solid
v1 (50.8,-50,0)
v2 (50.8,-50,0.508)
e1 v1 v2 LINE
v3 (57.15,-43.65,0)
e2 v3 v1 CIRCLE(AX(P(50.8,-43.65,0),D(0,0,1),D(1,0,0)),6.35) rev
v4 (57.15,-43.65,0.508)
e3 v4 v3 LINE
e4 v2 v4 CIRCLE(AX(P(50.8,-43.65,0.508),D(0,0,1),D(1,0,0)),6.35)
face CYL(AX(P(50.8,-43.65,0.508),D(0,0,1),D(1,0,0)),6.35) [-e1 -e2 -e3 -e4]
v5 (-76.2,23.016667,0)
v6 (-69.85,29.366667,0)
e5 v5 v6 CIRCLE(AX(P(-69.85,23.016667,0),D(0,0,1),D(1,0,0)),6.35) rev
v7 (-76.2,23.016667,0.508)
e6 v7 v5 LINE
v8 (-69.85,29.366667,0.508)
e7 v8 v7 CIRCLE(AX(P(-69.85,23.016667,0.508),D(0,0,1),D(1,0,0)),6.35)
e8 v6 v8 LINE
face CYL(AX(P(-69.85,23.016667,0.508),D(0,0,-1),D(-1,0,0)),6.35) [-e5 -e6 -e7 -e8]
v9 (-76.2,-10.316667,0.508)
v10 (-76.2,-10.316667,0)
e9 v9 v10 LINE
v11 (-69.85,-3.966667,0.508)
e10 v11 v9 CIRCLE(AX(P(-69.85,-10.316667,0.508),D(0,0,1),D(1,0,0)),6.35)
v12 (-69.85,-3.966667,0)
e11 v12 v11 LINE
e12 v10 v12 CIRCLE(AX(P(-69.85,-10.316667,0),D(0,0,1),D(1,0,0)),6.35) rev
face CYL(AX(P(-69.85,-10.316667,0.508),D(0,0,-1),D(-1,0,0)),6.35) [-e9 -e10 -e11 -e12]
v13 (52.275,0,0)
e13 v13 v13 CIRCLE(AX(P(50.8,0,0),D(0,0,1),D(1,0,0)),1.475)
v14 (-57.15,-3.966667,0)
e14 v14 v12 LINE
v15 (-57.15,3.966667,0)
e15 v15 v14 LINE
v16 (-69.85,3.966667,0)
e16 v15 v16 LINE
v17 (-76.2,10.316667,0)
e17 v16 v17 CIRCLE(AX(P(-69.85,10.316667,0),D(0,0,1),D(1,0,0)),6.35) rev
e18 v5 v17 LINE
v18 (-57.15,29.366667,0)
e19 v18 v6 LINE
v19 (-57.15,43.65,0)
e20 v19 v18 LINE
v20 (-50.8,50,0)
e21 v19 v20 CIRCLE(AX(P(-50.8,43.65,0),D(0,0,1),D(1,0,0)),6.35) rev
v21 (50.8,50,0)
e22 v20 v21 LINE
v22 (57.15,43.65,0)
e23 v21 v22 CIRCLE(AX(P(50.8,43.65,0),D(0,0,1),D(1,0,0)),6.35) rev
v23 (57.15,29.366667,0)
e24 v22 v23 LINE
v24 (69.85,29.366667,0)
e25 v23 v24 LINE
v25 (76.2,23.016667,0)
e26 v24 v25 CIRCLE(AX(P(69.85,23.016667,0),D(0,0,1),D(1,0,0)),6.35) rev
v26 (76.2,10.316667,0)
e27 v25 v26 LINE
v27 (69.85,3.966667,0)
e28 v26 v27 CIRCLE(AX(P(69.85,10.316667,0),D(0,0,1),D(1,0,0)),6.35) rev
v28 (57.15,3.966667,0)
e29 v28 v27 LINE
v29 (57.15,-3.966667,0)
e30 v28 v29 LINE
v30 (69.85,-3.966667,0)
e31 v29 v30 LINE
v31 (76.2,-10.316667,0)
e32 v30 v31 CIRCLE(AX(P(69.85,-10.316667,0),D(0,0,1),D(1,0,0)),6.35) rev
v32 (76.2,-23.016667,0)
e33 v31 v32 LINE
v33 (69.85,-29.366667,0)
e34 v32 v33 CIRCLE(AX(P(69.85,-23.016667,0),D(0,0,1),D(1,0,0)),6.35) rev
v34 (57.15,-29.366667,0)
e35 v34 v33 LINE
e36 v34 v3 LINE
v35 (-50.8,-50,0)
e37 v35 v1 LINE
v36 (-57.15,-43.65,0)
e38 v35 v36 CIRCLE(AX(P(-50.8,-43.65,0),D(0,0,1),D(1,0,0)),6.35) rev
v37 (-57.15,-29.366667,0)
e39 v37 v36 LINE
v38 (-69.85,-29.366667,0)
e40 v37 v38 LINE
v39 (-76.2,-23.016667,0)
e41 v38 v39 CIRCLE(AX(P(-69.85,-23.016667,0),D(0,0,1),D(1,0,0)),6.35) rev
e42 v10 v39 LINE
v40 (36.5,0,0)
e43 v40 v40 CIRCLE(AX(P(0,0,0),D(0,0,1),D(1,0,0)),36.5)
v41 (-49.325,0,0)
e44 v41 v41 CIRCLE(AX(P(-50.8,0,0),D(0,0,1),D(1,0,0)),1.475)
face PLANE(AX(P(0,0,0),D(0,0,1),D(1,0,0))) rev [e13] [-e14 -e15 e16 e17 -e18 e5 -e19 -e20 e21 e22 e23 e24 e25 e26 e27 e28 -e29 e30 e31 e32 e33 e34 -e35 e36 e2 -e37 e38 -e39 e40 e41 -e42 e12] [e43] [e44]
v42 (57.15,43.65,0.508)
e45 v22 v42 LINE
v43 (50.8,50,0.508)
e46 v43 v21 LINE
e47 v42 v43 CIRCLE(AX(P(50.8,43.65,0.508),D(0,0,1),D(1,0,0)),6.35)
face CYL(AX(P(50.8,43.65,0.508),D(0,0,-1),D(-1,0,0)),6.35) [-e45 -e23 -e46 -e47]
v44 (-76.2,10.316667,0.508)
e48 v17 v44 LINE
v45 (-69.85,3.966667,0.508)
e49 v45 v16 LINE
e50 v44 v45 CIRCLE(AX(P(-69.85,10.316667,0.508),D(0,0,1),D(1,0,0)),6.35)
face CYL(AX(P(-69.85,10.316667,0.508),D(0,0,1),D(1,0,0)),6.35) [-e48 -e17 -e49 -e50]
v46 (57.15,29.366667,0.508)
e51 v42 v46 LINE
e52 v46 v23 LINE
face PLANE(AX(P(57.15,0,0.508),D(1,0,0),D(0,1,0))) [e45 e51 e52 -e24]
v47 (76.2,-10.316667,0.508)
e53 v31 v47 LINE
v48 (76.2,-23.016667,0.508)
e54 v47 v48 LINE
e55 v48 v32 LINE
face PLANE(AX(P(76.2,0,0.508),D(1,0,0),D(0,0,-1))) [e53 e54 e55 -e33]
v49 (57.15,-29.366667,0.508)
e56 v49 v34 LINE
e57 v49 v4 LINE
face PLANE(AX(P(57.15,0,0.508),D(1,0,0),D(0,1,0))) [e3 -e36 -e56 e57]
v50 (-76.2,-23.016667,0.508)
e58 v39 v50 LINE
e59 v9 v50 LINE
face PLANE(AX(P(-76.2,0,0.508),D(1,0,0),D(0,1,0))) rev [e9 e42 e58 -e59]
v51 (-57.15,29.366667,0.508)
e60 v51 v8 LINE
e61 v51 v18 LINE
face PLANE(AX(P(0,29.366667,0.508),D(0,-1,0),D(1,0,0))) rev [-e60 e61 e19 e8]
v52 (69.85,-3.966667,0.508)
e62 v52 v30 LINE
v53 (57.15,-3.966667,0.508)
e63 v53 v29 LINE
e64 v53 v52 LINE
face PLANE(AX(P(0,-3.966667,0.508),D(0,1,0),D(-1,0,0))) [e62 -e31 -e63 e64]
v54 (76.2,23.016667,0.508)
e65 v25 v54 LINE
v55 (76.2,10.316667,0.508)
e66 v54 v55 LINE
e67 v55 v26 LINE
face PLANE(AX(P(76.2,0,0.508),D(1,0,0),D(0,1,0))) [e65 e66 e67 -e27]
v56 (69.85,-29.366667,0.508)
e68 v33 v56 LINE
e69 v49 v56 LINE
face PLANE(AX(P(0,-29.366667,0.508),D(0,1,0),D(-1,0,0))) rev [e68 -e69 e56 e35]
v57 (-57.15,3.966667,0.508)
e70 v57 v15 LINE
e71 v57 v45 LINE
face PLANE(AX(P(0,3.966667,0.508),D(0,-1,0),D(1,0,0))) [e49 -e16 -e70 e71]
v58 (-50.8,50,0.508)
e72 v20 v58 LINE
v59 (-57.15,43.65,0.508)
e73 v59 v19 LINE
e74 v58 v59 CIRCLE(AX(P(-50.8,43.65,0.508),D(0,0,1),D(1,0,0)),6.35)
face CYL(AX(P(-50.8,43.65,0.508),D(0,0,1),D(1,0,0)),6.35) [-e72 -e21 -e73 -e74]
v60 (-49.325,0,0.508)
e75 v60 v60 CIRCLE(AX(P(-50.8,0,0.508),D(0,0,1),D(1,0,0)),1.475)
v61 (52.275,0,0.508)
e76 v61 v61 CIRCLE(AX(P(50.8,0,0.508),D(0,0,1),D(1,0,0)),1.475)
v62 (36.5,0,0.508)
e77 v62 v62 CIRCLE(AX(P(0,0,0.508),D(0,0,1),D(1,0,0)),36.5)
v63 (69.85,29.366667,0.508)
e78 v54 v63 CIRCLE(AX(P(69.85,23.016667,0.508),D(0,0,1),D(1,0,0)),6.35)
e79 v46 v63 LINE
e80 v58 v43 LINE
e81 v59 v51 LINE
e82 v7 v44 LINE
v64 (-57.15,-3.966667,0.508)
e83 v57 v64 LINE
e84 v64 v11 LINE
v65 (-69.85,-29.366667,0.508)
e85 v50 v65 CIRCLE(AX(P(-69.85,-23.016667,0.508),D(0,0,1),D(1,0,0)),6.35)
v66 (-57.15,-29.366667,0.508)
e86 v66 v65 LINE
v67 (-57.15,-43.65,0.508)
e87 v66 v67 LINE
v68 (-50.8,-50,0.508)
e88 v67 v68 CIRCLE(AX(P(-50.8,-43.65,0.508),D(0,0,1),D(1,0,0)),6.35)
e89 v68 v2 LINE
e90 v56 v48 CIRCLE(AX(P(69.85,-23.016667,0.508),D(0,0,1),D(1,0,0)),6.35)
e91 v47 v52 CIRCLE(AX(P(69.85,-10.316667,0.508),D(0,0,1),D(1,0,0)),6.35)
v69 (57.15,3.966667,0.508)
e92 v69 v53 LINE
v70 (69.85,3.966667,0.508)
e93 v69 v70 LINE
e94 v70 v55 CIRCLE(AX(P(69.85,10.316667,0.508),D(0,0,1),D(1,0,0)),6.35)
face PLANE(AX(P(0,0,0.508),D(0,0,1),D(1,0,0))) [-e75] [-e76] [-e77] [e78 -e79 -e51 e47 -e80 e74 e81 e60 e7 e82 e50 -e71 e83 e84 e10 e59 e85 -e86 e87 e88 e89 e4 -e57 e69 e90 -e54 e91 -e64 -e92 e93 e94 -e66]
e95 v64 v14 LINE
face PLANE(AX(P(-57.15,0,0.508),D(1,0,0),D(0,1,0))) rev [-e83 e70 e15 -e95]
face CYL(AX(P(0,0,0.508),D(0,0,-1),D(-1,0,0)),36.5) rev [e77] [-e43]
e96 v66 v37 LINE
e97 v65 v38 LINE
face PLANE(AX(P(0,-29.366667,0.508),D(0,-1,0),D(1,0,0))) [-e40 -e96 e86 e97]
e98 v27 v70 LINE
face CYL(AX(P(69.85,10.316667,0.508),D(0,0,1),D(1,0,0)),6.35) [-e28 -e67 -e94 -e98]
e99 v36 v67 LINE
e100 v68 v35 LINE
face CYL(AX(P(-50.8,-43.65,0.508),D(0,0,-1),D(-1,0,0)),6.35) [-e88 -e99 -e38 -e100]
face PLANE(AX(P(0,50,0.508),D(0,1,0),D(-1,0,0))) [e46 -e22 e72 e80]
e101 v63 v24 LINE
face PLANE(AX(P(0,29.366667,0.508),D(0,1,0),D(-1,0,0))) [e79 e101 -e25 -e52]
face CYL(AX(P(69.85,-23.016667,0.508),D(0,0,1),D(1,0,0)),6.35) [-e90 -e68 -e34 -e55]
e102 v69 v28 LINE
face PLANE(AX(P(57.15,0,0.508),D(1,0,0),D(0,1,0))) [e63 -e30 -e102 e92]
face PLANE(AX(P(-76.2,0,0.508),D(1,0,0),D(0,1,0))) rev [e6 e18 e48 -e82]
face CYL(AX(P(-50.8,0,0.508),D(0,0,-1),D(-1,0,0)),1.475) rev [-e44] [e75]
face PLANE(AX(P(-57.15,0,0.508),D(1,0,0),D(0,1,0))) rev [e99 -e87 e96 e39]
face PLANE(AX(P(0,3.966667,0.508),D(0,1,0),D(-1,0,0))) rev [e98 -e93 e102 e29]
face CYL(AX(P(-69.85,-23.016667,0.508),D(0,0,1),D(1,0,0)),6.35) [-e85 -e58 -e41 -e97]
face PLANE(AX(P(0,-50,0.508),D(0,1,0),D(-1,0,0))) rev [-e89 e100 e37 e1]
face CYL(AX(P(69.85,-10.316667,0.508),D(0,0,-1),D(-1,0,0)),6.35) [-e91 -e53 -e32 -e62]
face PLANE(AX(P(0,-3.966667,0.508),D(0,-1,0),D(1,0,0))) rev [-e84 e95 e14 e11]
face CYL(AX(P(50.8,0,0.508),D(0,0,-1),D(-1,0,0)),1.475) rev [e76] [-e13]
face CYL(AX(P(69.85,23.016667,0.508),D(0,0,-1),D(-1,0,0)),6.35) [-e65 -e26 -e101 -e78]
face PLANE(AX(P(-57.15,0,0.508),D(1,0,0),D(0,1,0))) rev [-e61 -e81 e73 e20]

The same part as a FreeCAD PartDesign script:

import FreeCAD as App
import Part
import Sketcher
from FreeCAD import Vector
Q = App.Units.Quantity


def edges_at(feature, points):
    """Names of the edges that pass closest to the given points."""
    edges = feature.Shape.Edges
    near = lambda p: min(range(len(edges)), key=lambda i: edges[i].distToShape(Part.Vertex(*p))[0])
    return sorted({f"Edge{near(p) + 1}" for p in points})

doc = App.newDocument("Part")
body = doc.addObject("PartDesign::Body", "Body")

sketch1 = doc.addObject("Sketcher::SketchObject", "Sketch")
body.addObject(sketch1)
sketch1.AttachmentSupport = (doc.XY_Plane, [""])
sketch1.MapMode = "FlatFace"
sketch1.addGeometry(Part.LineSegment(Vector(-57.1, -29.4, 0), Vector(-57.1, -50, 0)), False)
sketch1.addGeometry(Part.LineSegment(Vector(-57.1, -50, 0), Vector(57.1, -50, 0)), False)
sketch1.addGeometry(Part.LineSegment(Vector(57.1, -50, 0), Vector(57.1, -29.4, 0)), False)
sketch1.addGeometry(Part.LineSegment(Vector(57.1, -29.4, 0), Vector(76.2, -29.4, 0)), False)
sketch1.addGeometry(Part.LineSegment(Vector(76.2, -29.4, 0), Vector(76.2, -4, 0)), False)
sketch1.addGeometry(Part.LineSegment(Vector(76.2, -4, 0), Vector(57.1, -4, 0)), False)
sketch1.addGeometry(Part.LineSegment(Vector(57.1, -4, 0), Vector(57.1, 4, 0)), False)
sketch1.addGeometry(Part.LineSegment(Vector(57.1, 4, 0), Vector(76.2, 4, 0)), False)
sketch1.addGeometry(Part.LineSegment(Vector(76.2, 4, 0), Vector(76.2, 29.4, 0)), False)
sketch1.addGeometry(Part.LineSegment(Vector(76.2, 29.4, 0), Vector(57.1, 29.4, 0)), False)
sketch1.addGeometry(Part.LineSegment(Vector(57.1, 29.4, 0), Vector(57.1, 50, 0)), False)
sketch1.addGeometry(Part.LineSegment(Vector(57.1, 50, 0), Vector(-57.1, 50, 0)), False)
sketch1.addGeometry(Part.LineSegment(Vector(-57.1, 50, 0), Vector(-57.1, 29.4, 0)), False)
sketch1.addGeometry(Part.LineSegment(Vector(-57.1, 29.4, 0), Vector(-76.2, 29.4, 0)), False)
sketch1.addGeometry(Part.LineSegment(Vector(-76.2, 29.4, 0), Vector(-76.2, 4, 0)), False)
sketch1.addGeometry(Part.LineSegment(Vector(-76.2, 4, 0), Vector(-57.1, 4, 0)), False)
sketch1.addGeometry(Part.LineSegment(Vector(-57.1, 4, 0), Vector(-57.1, -4, 0)), False)
sketch1.addGeometry(Part.LineSegment(Vector(-57.1, -4, 0), Vector(-76.2, -4, 0)), False)
sketch1.addGeometry(Part.LineSegment(Vector(-76.2, -4, 0), Vector(-76.2, -29.4, 0)), False)
sketch1.addGeometry(Part.LineSegment(Vector(-76.2, -29.4, 0), Vector(-57.1, -29.4, 0)), False)
sketch1.addGeometry(Part.Circle(Vector(-50.8, 0, 0), Vector(0, 0, 1), 1.5), False)
sketch1.addGeometry(Part.Circle(Vector(0, 0, 0), Vector(0, 0, 1), 36.5), False)
sketch1.addGeometry(Part.Circle(Vector(50.8, 0, 0), Vector(0, 0, 1), 1.5), False)
sketch1.addConstraint(Sketcher.Constraint("Coincident", 0, 2, 1, 1))
sketch1.addConstraint(Sketcher.Constraint("Coincident", 1, 2, 2, 1))
sketch1.addConstraint(Sketcher.Constraint("Coincident", 2, 2, 3, 1))
sketch1.addConstraint(Sketcher.Constraint("Coincident", 3, 2, 4, 1))
sketch1.addConstraint(Sketcher.Constraint("Coincident", 4, 2, 5, 1))
sketch1.addConstraint(Sketcher.Constraint("Coincident", 5, 2, 6, 1))
sketch1.addConstraint(Sketcher.Constraint("Coincident", 6, 2, 7, 1))
sketch1.addConstraint(Sketcher.Constraint("Coincident", 7, 2, 8, 1))
sketch1.addConstraint(Sketcher.Constraint("Coincident", 8, 2, 9, 1))
sketch1.addConstraint(Sketcher.Constraint("Coincident", 9, 2, 10, 1))
sketch1.addConstraint(Sketcher.Constraint("Coincident", 10, 2, 11, 1))
sketch1.addConstraint(Sketcher.Constraint("Coincident", 11, 2, 12, 1))
sketch1.addConstraint(Sketcher.Constraint("Coincident", 12, 2, 13, 1))
sketch1.addConstraint(Sketcher.Constraint("Coincident", 13, 2, 14, 1))
sketch1.addConstraint(Sketcher.Constraint("Coincident", 14, 2, 15, 1))
sketch1.addConstraint(Sketcher.Constraint("Coincident", 15, 2, 16, 1))
sketch1.addConstraint(Sketcher.Constraint("Coincident", 16, 2, 17, 1))
sketch1.addConstraint(Sketcher.Constraint("Coincident", 17, 2, 18, 1))
sketch1.addConstraint(Sketcher.Constraint("Coincident", 18, 2, 19, 1))
sketch1.addConstraint(Sketcher.Constraint("Coincident", 19, 2, 0, 1))
sketch1.addConstraint(Sketcher.Constraint("Vertical", 0))
sketch1.addConstraint(Sketcher.Constraint("Horizontal", 1))
sketch1.addConstraint(Sketcher.Constraint("Vertical", 2))
sketch1.addConstraint(Sketcher.Constraint("Horizontal", 3))
sketch1.addConstraint(Sketcher.Constraint("Vertical", 4))
sketch1.addConstraint(Sketcher.Constraint("Horizontal", 5))
sketch1.addConstraint(Sketcher.Constraint("Vertical", 6))
sketch1.addConstraint(Sketcher.Constraint("Horizontal", 7))
sketch1.addConstraint(Sketcher.Constraint("Vertical", 8))
sketch1.addConstraint(Sketcher.Constraint("Horizontal", 9))
sketch1.addConstraint(Sketcher.Constraint("Vertical", 10))
sketch1.addConstraint(Sketcher.Constraint("Horizontal", 11))
sketch1.addConstraint(Sketcher.Constraint("Vertical", 12))
sketch1.addConstraint(Sketcher.Constraint("Horizontal", 13))
sketch1.addConstraint(Sketcher.Constraint("Vertical", 14))
sketch1.addConstraint(Sketcher.Constraint("Horizontal", 15))
sketch1.addConstraint(Sketcher.Constraint("Vertical", 16))
sketch1.addConstraint(Sketcher.Constraint("Horizontal", 17))
sketch1.addConstraint(Sketcher.Constraint("Vertical", 18))
sketch1.addConstraint(Sketcher.Constraint("Horizontal", 19))
sketch1.addConstraint(Sketcher.Constraint("Coincident", 21, 3, -1, 1))
sketch1.addConstraint(Sketcher.Constraint("Equal", 20, 22))
sketch1.addConstraint(Sketcher.Constraint("Symmetric", 20, 3, 22, 3, -1, 1))
sketch1.addConstraint(Sketcher.Constraint("Symmetric", 0, 2, 10, 2, -1, 1))
sketch1.addConstraint(Sketcher.Constraint("Symmetric", 2, 2, 12, 2, -1, 1))
sketch1.addConstraint(Sketcher.Constraint("Symmetric", 4, 2, 14, 2, -1, 1))
sketch1.addConstraint(Sketcher.Constraint("Symmetric", 6, 2, 16, 2, -1, 1))
sketch1.addConstraint(Sketcher.Constraint("Symmetric", 8, 2, 18, 2, -1, 1))
sketch1.addConstraint(Sketcher.Constraint("Symmetric", 9, 2, 12, 2, -2))
sketch1.addConstraint(Sketcher.Constraint("Symmetric", 7, 2, 14, 2, -2))
sketch1.addConstraint(Sketcher.Constraint("PointOnObject", 20, 3, -1))
sketch1.addConstraint(Sketcher.Constraint("Vertical", 2, 2, 5, 2))
sketch1.addConstraint(Sketcher.Constraint("DistanceY", 4, 1, 4, 2, Q("1 in")))
sketch1.addConstraint(Sketcher.Constraint("DistanceX", 1, 1, 1, 2, Q("4.5 in")))
sketch1.addConstraint(Sketcher.Constraint("DistanceX", 20, 3, -1, 1, Q("2 in")))
sketch1.addConstraint(Sketcher.Constraint("DistanceX", -1, 1, 3, 2, Q("3 in")))
sketch1.addConstraint(Sketcher.Constraint("Diameter", 20, Q("2.95 mm")))
sketch1.addConstraint(Sketcher.Constraint("Diameter", 21, Q("73 mm")))
sketch1.addConstraint(Sketcher.Constraint("DistanceY", 0, 2, -1, 1, Q("50 mm")))
sketch1.addConstraint(Sketcher.Constraint("DistanceY", 0, 2, 0, 1, Q("20.633333 mm")))
pad1 = doc.addObject("PartDesign::Pad", "Pad")
body.addObject(pad1)
pad1.Profile = sketch1
pad1.Length = Q("0.02 in")
doc.recompute()

fillet = doc.addObject("PartDesign::Fillet", "Fillet")
body.addObject(fillet)
fillet.Base = (pad1, edges_at(pad1, [
    (76.2, 29.367, 0.254),
    (76.2, 3.967, 0.254),
    (76.2, -3.967, 0.254),
    (76.2, -29.367, 0.254),
    (57.15, -50, 0.254),
    (-57.15, -50, 0.254),
    (-76.2, -29.367, 0.254),
    (-76.2, -3.967, 0.254),
    (-76.2, 3.967, 0.254),
    (-76.2, 29.367, 0.254),
    (-57.15, 50, 0.254),
    (57.15, 50, 0.254),
]))
fillet.Radius = Q("0.25 in")

doc.recompute()
